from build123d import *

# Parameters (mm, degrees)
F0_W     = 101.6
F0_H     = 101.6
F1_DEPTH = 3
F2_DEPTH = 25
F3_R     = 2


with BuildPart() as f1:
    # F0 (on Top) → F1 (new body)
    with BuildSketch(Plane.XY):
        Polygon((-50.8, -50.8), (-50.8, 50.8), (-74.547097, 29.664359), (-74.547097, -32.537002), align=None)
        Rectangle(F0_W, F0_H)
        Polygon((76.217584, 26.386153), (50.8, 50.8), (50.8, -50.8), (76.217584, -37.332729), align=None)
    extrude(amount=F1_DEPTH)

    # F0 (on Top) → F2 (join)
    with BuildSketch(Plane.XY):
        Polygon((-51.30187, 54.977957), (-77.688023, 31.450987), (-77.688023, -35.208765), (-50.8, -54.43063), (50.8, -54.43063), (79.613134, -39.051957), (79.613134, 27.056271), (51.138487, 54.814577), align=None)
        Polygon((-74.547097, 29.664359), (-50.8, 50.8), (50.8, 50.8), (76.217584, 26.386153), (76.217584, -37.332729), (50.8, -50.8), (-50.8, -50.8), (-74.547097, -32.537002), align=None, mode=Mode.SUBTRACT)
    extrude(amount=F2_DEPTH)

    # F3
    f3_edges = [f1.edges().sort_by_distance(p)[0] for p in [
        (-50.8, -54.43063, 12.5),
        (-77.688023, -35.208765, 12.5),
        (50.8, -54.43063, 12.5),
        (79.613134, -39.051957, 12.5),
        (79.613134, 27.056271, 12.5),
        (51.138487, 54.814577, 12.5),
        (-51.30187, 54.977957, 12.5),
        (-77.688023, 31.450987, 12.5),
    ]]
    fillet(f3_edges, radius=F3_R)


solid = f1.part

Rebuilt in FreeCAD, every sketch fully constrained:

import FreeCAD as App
import Part
import Sketcher

V = App.Vector
Q = App.Units.Quantity


def edges_at(feature, points):
    """Names of the edges that pass closest to the given points."""
    edges = feature.Shape.Edges
    near = lambda p: min(range(len(edges)), key=lambda i: edges[i].distToShape(Part.Vertex(*p))[0])
    return sorted({f"Edge{near(p) + 1}" for p in points})


def add_polygon(sketch, points):
    """Adds a closed chain of lines whose ends are joined by coincident constraints."""
    first, n = sketch.GeometryCount, len(points)
    for a, b in zip(points, points[1:] + points[:1]):
        sketch.addGeometry(Part.LineSegment(App.Vector(*a, 0), App.Vector(*b, 0)), False)
    for i in range(n):
        sketch.addConstraint(Sketcher.Constraint("Coincident", first + i, 2, first + (i + 1) % n, 1))

doc = App.newDocument("Part")
params = doc.addObject("Spreadsheet::Sheet", "Params")
for row, (alias, value) in enumerate([
    ("sketch1_width", "101.6 mm"),
    ("pad1_length", "3 mm"),
    ("sketch2_width", "101.6 mm"),
    ("pad2_length", "25 mm"),
    ("fillet_radius", "2 mm"),
], start=1):
    params.set(f"A{row}", alias)
    params.set(f"B{row}", "=" + value)
    params.setAlias(f"B{row}", alias)

body = doc.addObject("PartDesign::Body", "Body")

sketch1 = body.newObject("Sketcher::SketchObject", "Sketch")
sketch1.AttachmentSupport = (doc.getObject("XY_Plane"), [""])
sketch1.MapMode = "FlatFace"
add_polygon(sketch1, [(-51, 51), (-75, 30), (-75, -33), (-51, -51), (51, -51), (76, -37), (76, 26), (51, 51)])
sketch1.addConstraint([
    Sketcher.Constraint("Vertical", 1),
    Sketcher.Constraint("Horizontal", 3),
    Sketcher.Constraint("Vertical", 5),
    Sketcher.Constraint("Horizontal", 7),
    Sketcher.Constraint("Symmetric", 2, 2, 6, 2, -1, 1),
    Sketcher.Constraint("Vertical", 3, 2, 6, 2),
    Sketcher.Constraint("Vertical", 2, 2, 7, 2),
    Sketcher.Constraint("DistanceX", 3, 1, 3, 2, Q("101.6 mm")),
    Sketcher.Constraint("DistanceY", 2, 2, -1, 1, Q("50.8 mm")),
    Sketcher.Constraint("DistanceY", 1, 2, 7, 2, Q("83.337002 mm")),
    Sketcher.Constraint("DistanceY", 1, 2, 1, 1, Q("62.201361 mm")),
    Sketcher.Constraint("Distance", 6, Q("35.24329 mm")),
    Sketcher.Constraint("DistanceY", 5, 1, 5, 2, Q("63.718882 mm")),
    Sketcher.Constraint("DistanceY", 4, 2, -1, 1, Q("37.332729 mm")),
    Sketcher.Constraint("DistanceX", 1, 2, 4, 2, Q("150.764681 mm")),
])
sketch1.setExpression("Constraints[15]", "Params.sketch1_width")
pad1 = body.newObject("PartDesign::Pad", "Pad")
pad1.Profile = sketch1
pad1.setExpression("Length", "Params.pad1_length")

sketch2 = body.newObject("Sketcher::SketchObject", "Sketch001")
sketch2.AttachmentSupport = (doc.getObject("XY_Plane"), [""])
sketch2.MapMode = "FlatFace"
add_polygon(sketch2, [(-51, 55), (-78, 31), (-78, -35), (-51, -54), (51, -54), (80, -39), (80, 27), (51, 55)])
add_polygon(sketch2, [(-75, -33), (-75, 30), (-51, 51), (51, 51), (76, 26), (76, -37), (51, -51), (-51, -51)])
sketch2.addConstraint([
    Sketcher.Constraint("Vertical", 1),
    Sketcher.Constraint("Horizontal", 3),
    Sketcher.Constraint("Vertical", 5),
    Sketcher.Constraint("Vertical", 8),
    Sketcher.Constraint("Horizontal", 10),
    Sketcher.Constraint("Vertical", 12),
    Sketcher.Constraint("Horizontal", 14),
    Sketcher.Constraint("Symmetric", 9, 2, 13, 2, -1, 1),
    Sketcher.Constraint("Vertical", 2, 2, 9, 2),
    Sketcher.Constraint("Vertical", 3, 2, 10, 2),
    Sketcher.Constraint("Vertical", 10, 2, 13, 2),
    Sketcher.Constraint("Vertical", 9, 2, 14, 2),
    Sketcher.Constraint("DistanceX", 3, 1, 3, 2, Q("101.6 mm")),
    Sketcher.Constraint("DistanceY", -1, 1, 9, 2, Q("50.8 mm")),
    Sketcher.Constraint("DistanceY", 12, 2, 5, 2, Q("64.389 mm")),
    Sketcher.Constraint("DistanceY", 1, 2, 1, 1, Q("66.659752 mm")),
    Sketcher.Constraint("DistanceY", 8, 1, 8, 2, Q("62.201361 mm")),
    Sketcher.Constraint("DistanceY", 3, 2, 5, 2, Q("81.486901 mm")),
    Sketcher.Constraint("DistanceY", 8, 2, 7, 2, Q("25.313598 mm")),
    Sketcher.Constraint("Distance", 2, Q("33.052169 mm")),
    Sketcher.Constraint("Distance", 6, Q("39.765929 mm")),
    Sketcher.Constraint("Distance", 11, Q("35.24329 mm")),
    Sketcher.Constraint("DistanceY", 5, 1, 5, 2, Q("66.108228 mm")),
    Sketcher.Constraint("DistanceY", 12, 2, 12, 1, Q("63.718882 mm")),
    Sketcher.Constraint("DistanceY", 2, 2, -1, 1, Q("54.43063 mm")),
    Sketcher.Constraint("DistanceX", 7, 2, -1, 1, Q("51.30187 mm")),
    Sketcher.Constraint("DistanceY", -1, 1, 8, 2, Q("29.664359 mm")),
    Sketcher.Constraint("DistanceX", 0, 2, 6, 2, Q("128.82651 mm")),
    Sketcher.Constraint("DistanceY", 0, 2, 6, 2, Q("23.36359 mm")),
    Sketcher.Constraint("DistanceY", 0, 2, 7, 2, Q("23.52697 mm")),
    Sketcher.Constraint("Distance", 9, Q("31.790564 mm")),
])
sketch2.setExpression("Constraints[28]", "Params.sketch2_width")
pad2 = body.newObject("PartDesign::Pad", "Pad001")
pad2.Profile = sketch2
pad2.setExpression("Length", "Params.pad2_length")
doc.recompute()

fillet = body.newObject("PartDesign::Fillet", "Fillet")
fillet.Base = (pad2, edges_at(pad2, [
    (-50.8, -54.431, 12.5),
    (-77.688, -35.209, 12.5),
    (50.8, -54.431, 12.5),
    (79.613, -39.052, 12.5),
    (79.613, 27.056, 12.5),
    (51.138, 54.815, 12.5),
    (-51.302, 54.978, 12.5),
    (-77.688, 31.451, 12.5),
]))
fillet.setExpression("Radius", "Params.fillet_radius")

doc.recompute()
